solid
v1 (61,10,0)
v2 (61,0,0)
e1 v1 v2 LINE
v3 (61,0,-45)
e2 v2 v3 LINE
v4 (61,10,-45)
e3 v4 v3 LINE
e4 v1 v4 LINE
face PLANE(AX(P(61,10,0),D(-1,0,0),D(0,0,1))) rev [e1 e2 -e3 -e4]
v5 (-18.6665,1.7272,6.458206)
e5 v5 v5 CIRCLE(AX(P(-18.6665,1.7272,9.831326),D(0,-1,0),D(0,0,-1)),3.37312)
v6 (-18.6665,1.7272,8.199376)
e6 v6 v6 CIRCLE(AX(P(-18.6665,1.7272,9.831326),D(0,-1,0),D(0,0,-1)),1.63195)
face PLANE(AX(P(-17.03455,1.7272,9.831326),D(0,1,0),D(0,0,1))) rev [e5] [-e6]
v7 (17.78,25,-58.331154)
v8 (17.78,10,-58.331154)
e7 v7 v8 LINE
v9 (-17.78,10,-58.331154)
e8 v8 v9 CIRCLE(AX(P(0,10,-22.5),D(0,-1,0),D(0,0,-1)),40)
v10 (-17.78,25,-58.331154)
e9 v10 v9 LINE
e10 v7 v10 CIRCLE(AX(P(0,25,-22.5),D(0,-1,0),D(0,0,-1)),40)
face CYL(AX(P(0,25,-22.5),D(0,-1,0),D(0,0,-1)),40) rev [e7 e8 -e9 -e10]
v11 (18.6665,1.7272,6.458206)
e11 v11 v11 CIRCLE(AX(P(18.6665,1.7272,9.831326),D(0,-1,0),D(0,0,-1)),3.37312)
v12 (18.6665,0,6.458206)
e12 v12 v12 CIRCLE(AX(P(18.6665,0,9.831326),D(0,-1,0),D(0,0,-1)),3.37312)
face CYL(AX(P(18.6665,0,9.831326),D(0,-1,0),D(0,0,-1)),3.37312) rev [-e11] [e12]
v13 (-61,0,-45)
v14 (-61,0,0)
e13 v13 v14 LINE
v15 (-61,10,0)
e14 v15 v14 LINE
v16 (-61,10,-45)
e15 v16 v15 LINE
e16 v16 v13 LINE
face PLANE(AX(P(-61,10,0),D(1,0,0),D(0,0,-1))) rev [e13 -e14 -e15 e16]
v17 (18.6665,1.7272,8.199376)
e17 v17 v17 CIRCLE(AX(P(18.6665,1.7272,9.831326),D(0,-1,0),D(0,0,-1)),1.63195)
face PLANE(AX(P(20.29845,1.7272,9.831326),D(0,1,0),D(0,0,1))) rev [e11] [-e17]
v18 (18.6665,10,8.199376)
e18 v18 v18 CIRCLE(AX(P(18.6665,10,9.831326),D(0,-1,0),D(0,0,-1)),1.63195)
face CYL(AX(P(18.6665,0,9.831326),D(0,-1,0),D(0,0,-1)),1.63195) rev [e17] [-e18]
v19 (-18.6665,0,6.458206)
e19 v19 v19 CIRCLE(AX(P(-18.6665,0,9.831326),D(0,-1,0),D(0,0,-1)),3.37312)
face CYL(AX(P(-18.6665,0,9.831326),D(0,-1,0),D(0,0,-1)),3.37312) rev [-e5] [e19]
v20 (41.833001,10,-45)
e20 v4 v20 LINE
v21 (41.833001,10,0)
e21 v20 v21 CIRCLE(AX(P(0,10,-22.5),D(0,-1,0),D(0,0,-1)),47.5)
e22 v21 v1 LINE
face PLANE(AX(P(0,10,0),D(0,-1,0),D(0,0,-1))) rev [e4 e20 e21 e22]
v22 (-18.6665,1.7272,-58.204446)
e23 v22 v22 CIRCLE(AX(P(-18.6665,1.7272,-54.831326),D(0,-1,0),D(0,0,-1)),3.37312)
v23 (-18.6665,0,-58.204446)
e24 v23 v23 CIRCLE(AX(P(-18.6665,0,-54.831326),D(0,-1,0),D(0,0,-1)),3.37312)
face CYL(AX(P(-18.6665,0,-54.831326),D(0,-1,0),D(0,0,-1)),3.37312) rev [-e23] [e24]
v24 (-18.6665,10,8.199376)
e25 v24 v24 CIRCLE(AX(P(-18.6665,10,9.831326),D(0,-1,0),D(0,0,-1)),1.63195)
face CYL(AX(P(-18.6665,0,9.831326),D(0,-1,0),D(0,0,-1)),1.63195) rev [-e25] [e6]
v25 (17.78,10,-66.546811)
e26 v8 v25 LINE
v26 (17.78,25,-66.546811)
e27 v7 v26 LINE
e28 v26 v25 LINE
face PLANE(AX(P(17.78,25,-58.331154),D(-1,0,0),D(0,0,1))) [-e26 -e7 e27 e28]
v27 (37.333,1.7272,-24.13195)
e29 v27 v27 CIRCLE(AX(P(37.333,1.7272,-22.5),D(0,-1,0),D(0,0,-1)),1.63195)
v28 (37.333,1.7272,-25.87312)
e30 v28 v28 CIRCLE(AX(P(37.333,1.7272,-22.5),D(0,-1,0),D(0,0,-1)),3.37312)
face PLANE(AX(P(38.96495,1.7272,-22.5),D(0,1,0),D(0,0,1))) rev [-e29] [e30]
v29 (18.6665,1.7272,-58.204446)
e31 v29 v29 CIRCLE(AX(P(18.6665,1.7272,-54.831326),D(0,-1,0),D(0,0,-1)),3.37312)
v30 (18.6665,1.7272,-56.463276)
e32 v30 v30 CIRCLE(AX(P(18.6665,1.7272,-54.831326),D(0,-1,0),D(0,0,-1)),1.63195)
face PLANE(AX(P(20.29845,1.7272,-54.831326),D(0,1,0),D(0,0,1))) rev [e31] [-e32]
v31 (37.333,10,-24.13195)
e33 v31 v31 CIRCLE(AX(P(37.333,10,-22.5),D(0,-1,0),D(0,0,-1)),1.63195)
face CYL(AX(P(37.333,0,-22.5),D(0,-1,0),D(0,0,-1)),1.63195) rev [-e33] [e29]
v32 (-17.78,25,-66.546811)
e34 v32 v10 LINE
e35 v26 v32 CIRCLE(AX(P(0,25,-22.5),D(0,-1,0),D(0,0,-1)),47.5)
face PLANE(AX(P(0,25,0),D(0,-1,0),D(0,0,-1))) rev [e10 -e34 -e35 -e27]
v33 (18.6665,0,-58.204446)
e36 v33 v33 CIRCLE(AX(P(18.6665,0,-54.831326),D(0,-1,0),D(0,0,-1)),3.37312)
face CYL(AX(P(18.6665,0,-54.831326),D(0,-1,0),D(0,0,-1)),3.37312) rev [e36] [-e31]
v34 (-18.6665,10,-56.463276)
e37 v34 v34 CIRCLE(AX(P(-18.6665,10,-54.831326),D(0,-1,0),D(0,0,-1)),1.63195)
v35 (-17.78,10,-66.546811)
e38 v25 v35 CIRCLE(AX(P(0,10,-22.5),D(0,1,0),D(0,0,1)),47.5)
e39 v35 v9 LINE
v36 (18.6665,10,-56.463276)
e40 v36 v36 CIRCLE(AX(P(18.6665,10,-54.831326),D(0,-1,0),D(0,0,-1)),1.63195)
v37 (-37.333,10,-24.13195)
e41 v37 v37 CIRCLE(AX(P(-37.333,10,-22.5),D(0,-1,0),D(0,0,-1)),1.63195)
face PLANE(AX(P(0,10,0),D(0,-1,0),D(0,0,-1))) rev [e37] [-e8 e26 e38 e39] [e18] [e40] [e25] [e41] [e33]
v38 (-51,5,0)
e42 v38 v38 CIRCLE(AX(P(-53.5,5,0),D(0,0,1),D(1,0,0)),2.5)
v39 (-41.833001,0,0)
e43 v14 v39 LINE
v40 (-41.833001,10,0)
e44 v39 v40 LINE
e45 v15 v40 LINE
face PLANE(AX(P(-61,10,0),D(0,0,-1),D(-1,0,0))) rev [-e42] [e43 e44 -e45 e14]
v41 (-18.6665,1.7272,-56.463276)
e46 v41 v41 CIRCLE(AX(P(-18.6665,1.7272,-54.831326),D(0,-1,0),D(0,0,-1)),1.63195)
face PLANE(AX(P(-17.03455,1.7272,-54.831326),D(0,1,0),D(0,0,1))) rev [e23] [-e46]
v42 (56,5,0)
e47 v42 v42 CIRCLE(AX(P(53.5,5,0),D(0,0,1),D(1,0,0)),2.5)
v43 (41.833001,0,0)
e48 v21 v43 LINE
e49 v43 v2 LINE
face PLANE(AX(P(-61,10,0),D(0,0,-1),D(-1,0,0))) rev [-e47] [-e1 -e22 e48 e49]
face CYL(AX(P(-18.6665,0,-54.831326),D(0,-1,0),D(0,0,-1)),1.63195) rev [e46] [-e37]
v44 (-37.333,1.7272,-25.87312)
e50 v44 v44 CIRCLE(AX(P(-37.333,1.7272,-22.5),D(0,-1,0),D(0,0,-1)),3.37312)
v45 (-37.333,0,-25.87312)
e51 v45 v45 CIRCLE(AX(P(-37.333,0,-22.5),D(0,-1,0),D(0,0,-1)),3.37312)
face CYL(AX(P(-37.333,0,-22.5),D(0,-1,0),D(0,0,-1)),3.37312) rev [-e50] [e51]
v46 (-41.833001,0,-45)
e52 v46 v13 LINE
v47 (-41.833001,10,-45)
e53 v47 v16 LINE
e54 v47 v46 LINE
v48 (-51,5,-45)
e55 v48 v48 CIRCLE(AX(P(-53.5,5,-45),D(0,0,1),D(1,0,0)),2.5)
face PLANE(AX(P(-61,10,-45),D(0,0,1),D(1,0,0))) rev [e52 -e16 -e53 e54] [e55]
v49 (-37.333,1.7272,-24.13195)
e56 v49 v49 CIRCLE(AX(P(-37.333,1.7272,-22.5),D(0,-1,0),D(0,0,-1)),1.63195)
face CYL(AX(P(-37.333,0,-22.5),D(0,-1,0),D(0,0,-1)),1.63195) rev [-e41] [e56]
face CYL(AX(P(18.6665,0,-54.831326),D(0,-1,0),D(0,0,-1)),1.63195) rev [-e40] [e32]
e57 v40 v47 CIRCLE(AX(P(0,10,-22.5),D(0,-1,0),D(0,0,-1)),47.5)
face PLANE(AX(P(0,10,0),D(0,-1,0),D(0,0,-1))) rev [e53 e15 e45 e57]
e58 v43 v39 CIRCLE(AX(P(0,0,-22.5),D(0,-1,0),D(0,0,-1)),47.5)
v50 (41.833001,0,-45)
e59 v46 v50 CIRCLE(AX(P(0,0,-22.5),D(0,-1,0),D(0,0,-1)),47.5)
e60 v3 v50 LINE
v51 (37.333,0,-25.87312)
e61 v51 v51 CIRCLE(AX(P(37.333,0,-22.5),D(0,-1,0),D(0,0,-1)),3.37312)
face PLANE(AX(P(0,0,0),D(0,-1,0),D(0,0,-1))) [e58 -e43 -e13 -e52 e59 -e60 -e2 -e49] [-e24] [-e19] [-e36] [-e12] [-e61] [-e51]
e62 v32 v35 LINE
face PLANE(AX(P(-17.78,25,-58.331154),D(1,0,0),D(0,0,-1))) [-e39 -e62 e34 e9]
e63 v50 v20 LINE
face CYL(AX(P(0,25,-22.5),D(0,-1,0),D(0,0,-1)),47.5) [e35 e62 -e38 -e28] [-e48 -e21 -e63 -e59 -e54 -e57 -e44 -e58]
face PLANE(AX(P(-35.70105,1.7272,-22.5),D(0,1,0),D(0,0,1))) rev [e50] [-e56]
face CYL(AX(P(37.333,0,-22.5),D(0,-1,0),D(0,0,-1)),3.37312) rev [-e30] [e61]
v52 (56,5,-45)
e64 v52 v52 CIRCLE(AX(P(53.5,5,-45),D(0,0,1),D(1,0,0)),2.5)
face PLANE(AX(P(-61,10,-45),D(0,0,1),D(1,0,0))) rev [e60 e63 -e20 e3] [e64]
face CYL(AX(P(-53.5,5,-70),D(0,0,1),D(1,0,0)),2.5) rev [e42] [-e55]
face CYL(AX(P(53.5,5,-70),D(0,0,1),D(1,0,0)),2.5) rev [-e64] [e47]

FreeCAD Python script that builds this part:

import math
import FreeCAD as App
import Part
import Sketcher
from FreeCAD import Vector
Q = App.Units.Quantity

doc = App.newDocument("Part")
params = doc.addObject("Spreadsheet::Sheet", "Params")
for row, (alias, value) in enumerate([
    ("sketch1_width", "122 mm"),
    ("sketch1_height", "45 mm"),
    ("pad1_length", "10 mm"),
    ("pad2_length", "10 mm"),
    ("sketch3_diameter", "80 mm"),
    ("sketch3_radius", "47.5 mm"),
    ("pad3_length", "25 mm"),
    ("sketch4_diameter", "5 mm"),
    ("sketch5_radius", "40 mm"),
    ("sketch5_radius2", "47.5 mm"),
    ("hole_diameter", "3.2639 mm"),
    ("hole_cbore_diameter", "6.74624 mm"),
    ("hole_cbore_depth", "1.7272 mm"),
], start=1):
    params.set(f"A{row}", alias)
    params.set(f"B{row}", "=" + value)
    params.setAlias(f"B{row}", alias)

body = doc.addObject("PartDesign::Body", "Body")

# Sketch on XZ plane
sketch1 = doc.addObject("Sketcher::SketchObject", "Sketch")
body.addObject(sketch1)
sketch1.AttachmentSupport = (doc.XZ_Plane, [""])
sketch1.MapMode = "FlatFace"
sketch1.addGeometry(Part.LineSegment(Vector(-61, -45, 0), Vector(-61, 0, 0)), False)
sketch1.addGeometry(Part.LineSegment(Vector(-61, 0, 0), Vector(61, 0, 0)), False)
sketch1.addGeometry(Part.LineSegment(Vector(61, 0, 0), Vector(61, -45, 0)), False)
sketch1.addGeometry(Part.LineSegment(Vector(61, -45, 0), Vector(-61, -45, 0)), False)
sketch1.addConstraint(Sketcher.Constraint("Coincident", 0, 2, 1, 1))
sketch1.addConstraint(Sketcher.Constraint("Coincident", 1, 2, 2, 1))
sketch1.addConstraint(Sketcher.Constraint("Coincident", 2, 2, 3, 1))
sketch1.addConstraint(Sketcher.Constraint("Coincident", 3, 2, 0, 1))
sketch1.addConstraint(Sketcher.Constraint("Vertical", 0))
sketch1.addConstraint(Sketcher.Constraint("Horizontal", 1))
sketch1.addConstraint(Sketcher.Constraint("Vertical", 2))
sketch1.addConstraint(Sketcher.Constraint("Horizontal", 3))
sketch1.addConstraint(Sketcher.Constraint("Symmetric", 0, 2, 1, 2, -1, 1))
sketch1.addConstraint(Sketcher.Constraint("DistanceX", 1, 1, 1, 2, Q("122 mm")))
sketch1.addConstraint(Sketcher.Constraint("DistanceY", 0, 1, 0, 2, Q("45 mm")))
sketch1.setExpression("Constraints[9]", "Params.sketch1_width")
sketch1.setExpression("Constraints[10]", "Params.sketch1_height")
pad1 = doc.addObject("PartDesign::Pad", "Pad")
body.addObject(pad1)
pad1.Profile = sketch1
pad1.setExpression("Length", "Params.pad1_length")
pad1.Reversed = True

# Sketch on XZ plane
sketch2 = doc.addObject("Sketcher::SketchObject", "Sketch001")
body.addObject(sketch2)
sketch2.AttachmentSupport = (doc.XZ_Plane, [""])
sketch2.MapMode = "FlatFace"
sketch2.AttachmentOffset = App.Placement(Vector(0, 0, -10), App.Rotation())
sketch2.addGeometry(Part.ArcOfCircle(Part.Circle(Vector(0, -23, 0), Vector(0, 0, 1), 42), math.radians(0), math.radians(32)), False)
sketch2.addGeometry(Part.ArcOfCircle(Part.Circle(Vector(0, -22, 0), Vector(0, 0, 1), 42), math.radians(-32), math.radians(0)), False)
sketch2.addGeometry(Part.ArcOfCircle(Part.Circle(Vector(0, -22, 0), Vector(0, 0, 1), 42), math.radians(-148), math.radians(-32)), False)
sketch2.addGeometry(Part.ArcOfCircle(Part.Circle(Vector(0, -22, 0), Vector(0, 0, 1), 42), math.radians(148), math.radians(212)), False)
sketch2.addGeometry(Part.ArcOfCircle(Part.Circle(Vector(0, -23, 0), Vector(0, 0, 1), 42), math.radians(32), math.radians(148)), False)
sketch2.addConstraint(Sketcher.Constraint("Tangent", 0, 1, 1, 2))
sketch2.addConstraint(Sketcher.Constraint("Tangent", 1, 1, 2, 2))
sketch2.addConstraint(Sketcher.Constraint("Tangent", 2, 1, 3, 2))
sketch2.addConstraint(Sketcher.Constraint("Tangent", 3, 1, 4, 2))
sketch2.addConstraint(Sketcher.Constraint("Tangent", 4, 1, 0, 2))
sketch2.addConstraint(Sketcher.Constraint("Coincident", 2, 3, 0, 3))
sketch2.addConstraint(Sketcher.Constraint("Symmetric", 3, 1, 4, 1, -1, 1))
sketch2.addConstraint(Sketcher.Constraint("Symmetric", 1, 1, 2, 1, -2))
sketch2.addConstraint(Sketcher.Constraint("Horizontal", 4, 3, 0, 1))
sketch2.addConstraint(Sketcher.Constraint("Vertical", 2, 1, 3, 1))
sketch2.addConstraint(Sketcher.Constraint("DistanceY", 1, 1, -1, 1, Q("45 mm")))
sketch2.addConstraint(Sketcher.Constraint("Radius", 0, Q("42.333 mm")))
pad2 = doc.addObject("PartDesign::Pad", "Pad001")
body.addObject(pad2)
pad2.Profile = sketch2
pad2.setExpression("Length", "Params.pad2_length")

# Sketch on XZ plane
sketch3 = doc.addObject("Sketcher::SketchObject", "Sketch002")
body.addObject(sketch3)
sketch3.AttachmentSupport = (doc.XZ_Plane, [""])
sketch3.MapMode = "FlatFace"
sketch3.AttachmentOffset = App.Placement(Vector(0, 0, -25), App.Rotation())
sketch3.addGeometry(Part.ArcOfCircle(Part.Circle(Vector(0, -22, 0), Vector(0, 0, 1), 48), math.radians(-152), math.radians(-28)), False)
sketch3.addGeometry(Part.ArcOfCircle(Part.Circle(Vector(0, -23, 0), Vector(0, 0, 1), 47), math.radians(-28), math.radians(0)), False)
sketch3.addGeometry(Part.ArcOfCircle(Part.Circle(Vector(0, -22, 0), Vector(0, 0, 1), 47), math.radians(0), math.radians(28)), False)
sketch3.addGeometry(Part.ArcOfCircle(Part.Circle(Vector(0, -22, 0), Vector(0, 0, 1), 48), math.radians(28), math.radians(152)), False)
sketch3.addGeometry(Part.ArcOfCircle(Part.Circle(Vector(0, -22, 0), Vector(0, 0, 1), 48), math.radians(152), math.radians(208)), False)
sketch3.addGeometry(Part.Circle(Vector(0, -22, 0), Vector(0, 0, 1), 40), False)
sketch3.addConstraint(Sketcher.Constraint("Tangent", 0, 2, 1, 1))
sketch3.addConstraint(Sketcher.Constraint("Tangent", 1, 2, 2, 1))
sketch3.addConstraint(Sketcher.Constraint("Tangent", 2, 2, 3, 1))
sketch3.addConstraint(Sketcher.Constraint("Tangent", 3, 2, 4, 1))
sketch3.addConstraint(Sketcher.Constraint("Tangent", 4, 2, 0, 1))
sketch3.addConstraint(Sketcher.Constraint("Coincident", 2, 3, 0, 3))
sketch3.addConstraint(Sketcher.Constraint("Coincident", 5, 3, 0, 3))
sketch3.addConstraint(Sketcher.Constraint("Symmetric", 2, 2, 3, 2, -1, 1))
sketch3.addConstraint(Sketcher.Constraint("Symmetric", 0, 2, 4, 2, -2))
sketch3.addConstraint(Sketcher.Constraint("Horizontal", 5, 3, 1, 2))
sketch3.addConstraint(Sketcher.Constraint("Vertical", 0, 2, 2, 2))
sketch3.addConstraint(Sketcher.Constraint("Diameter", 5, Q("80 mm")))
sketch3.addConstraint(Sketcher.Constraint("Radius", 0, Q("47.5 mm")))
sketch3.addConstraint(Sketcher.Constraint("DistanceY", 0, 2, -1, 1, Q("45 mm")))
sketch3.setExpression("Constraints[11]", "Params.sketch3_diameter")
sketch3.setExpression("Constraints[12]", "Params.sketch3_radius")
pad3 = doc.addObject("PartDesign::Pad", "Pad002")
body.addObject(pad3)
pad3.Profile = sketch3
pad3.setExpression("Length", "Params.pad3_length")

# Sketch on XY plane
sketch4 = doc.addObject("Sketcher::SketchObject", "Sketch003")
body.addObject(sketch4)
sketch4.AttachmentSupport = (doc.XY_Plane, [""])
sketch4.MapMode = "FlatFace"
sketch4.addGeometry(Part.Circle(Vector(-53.5, 5, 0), Vector(0, 0, 1), 2.5), False)
sketch4.addGeometry(Part.Circle(Vector(53.5, 5, 0), Vector(0, 0, 1), 2.5), False)
sketch4.addConstraint(Sketcher.Constraint("Equal", 0, 1))
sketch4.addConstraint(Sketcher.Constraint("Symmetric", 0, 3, 1, 3, -2))
sketch4.addConstraint(Sketcher.Constraint("Diameter", 0, Q("5 mm")))
sketch4.addConstraint(Sketcher.Constraint("DistanceY", -1, 1, 0, 3, Q("5 mm")))
sketch4.addConstraint(Sketcher.Constraint("DistanceX", 0, 3, 1, 3, Q("107 mm")))
sketch4.setExpression("Constraints[2]", "Params.sketch4_diameter")
pocket1 = doc.addObject("PartDesign::Pocket", "Pocket")
body.addObject(pocket1)
pocket1.Profile = sketch4
pocket1.Type = "ThroughAll"

# Sketch on XZ plane
sketch5 = doc.addObject("Sketcher::SketchObject", "Sketch004")
body.addObject(sketch5)
sketch5.AttachmentSupport = (doc.XZ_Plane, [""])
sketch5.MapMode = "FlatFace"
sketch5.AttachmentOffset = App.Placement(Vector(0, 0, -10), App.Rotation())
sketch5.addGeometry(Part.LineSegment(Vector(-18, -67, 0), Vector(-18, -58, 0)), False)
sketch5.addGeometry(Part.ArcOfCircle(Part.Circle(Vector(0, -23, 0), Vector(0, 0, 1), 40), math.radians(-116), math.radians(-64)), False)
sketch5.addGeometry(Part.LineSegment(Vector(18, -58, 0), Vector(18, -67, 0)), False)
sketch5.addGeometry(Part.ArcOfCircle(Part.Circle(Vector(0, -23, 0), Vector(0, 0, 1), 47), math.radians(-112), math.radians(-68)), False)
sketch5.addConstraint(Sketcher.Constraint("Coincident", 0, 2, 1, 1))
sketch5.addConstraint(Sketcher.Constraint("Coincident", 1, 2, 2, 1))
sketch5.addConstraint(Sketcher.Constraint("Coincident", 2, 2, 3, 2))
sketch5.addConstraint(Sketcher.Constraint("Coincident", 3, 1, 0, 1))
sketch5.addConstraint(Sketcher.Constraint("Vertical", 0))
sketch5.addConstraint(Sketcher.Constraint("Vertical", 2))
sketch5.addConstraint(Sketcher.Constraint("Coincident", 3, 3, 1, 3))
sketch5.addConstraint(Sketcher.Constraint("Symmetric", 0, 2, 1, 2, -2))
sketch5.addConstraint(Sketcher.Constraint("Radius", 1, Q("40 mm")))
sketch5.addConstraint(Sketcher.Constraint("Radius", 3, Q("47.5 mm")))
sketch5.addConstraint(Sketcher.Constraint("DistanceY", 1, 3, -1, 1, Q("22.5 mm")))
sketch5.addConstraint(Sketcher.Constraint("DistanceX", 0, 2, -1, 1, Q("17.78 mm")))
sketch5.setExpression("Constraints[8]", "Params.sketch5_radius")
sketch5.setExpression("Constraints[9]", "Params.sketch5_radius2")
pocket2 = doc.addObject("PartDesign::Pocket", "Pocket001")
body.addObject(pocket2)
pocket2.Profile = sketch5
pocket2.Type = "ThroughAll"

# Sketch on XZ plane
sketch6 = doc.addObject("Sketcher::SketchObject", "Sketch005")
body.addObject(sketch6)
sketch6.AttachmentSupport = (doc.XZ_Plane, [""])
sketch6.MapMode = "FlatFace"
sketch6.addGeometry(Part.Circle(Vector(-18.7, 9.8, 0), Vector(0, 0, 1), 1.6), False)
sketch6.addGeometry(Part.Circle(Vector(18.7, 9.8, 0), Vector(0, 0, 1), 1.6), False)
sketch6.addGeometry(Part.Circle(Vector(37.3, -22.5, 0), Vector(0, 0, 1), 1.6), False)
sketch6.addGeometry(Part.Circle(Vector(18.7, -54.8, 0), Vector(0, 0, 1), 1.6), False)
sketch6.addGeometry(Part.Circle(Vector(-18.7, -54.8, 0), Vector(0, 0, 1), 1.6), False)
sketch6.addGeometry(Part.Circle(Vector(-37.3, -22.5, 0), Vector(0, 0, 1), 1.6), False)
sketch6.addConstraint(Sketcher.Constraint("Equal", 0, 1))
sketch6.addConstraint(Sketcher.Constraint("Equal", 1, 2))
sketch6.addConstraint(Sketcher.Constraint("Equal", 2, 3))
sketch6.addConstraint(Sketcher.Constraint("Equal", 3, 4))
sketch6.addConstraint(Sketcher.Constraint("Equal", 4, 5))
sketch6.addConstraint(Sketcher.Constraint("Symmetric", 0, 3, 1, 3, -2))
sketch6.addConstraint(Sketcher.Constraint("Symmetric", 3, 3, 4, 3, -2))
sketch6.addConstraint(Sketcher.Constraint("Symmetric", 2, 3, 5, 3, -2))
sketch6.addConstraint(Sketcher.Constraint("Vertical", 1, 3, 3, 3))
sketch6.addConstraint(Sketcher.Constraint("Diameter", 0, Q("3.2639 mm")))
sketch6.addConstraint(Sketcher.Constraint("DistanceY", 2, 3, -1, 1, Q("22.5 mm")))
sketch6.addConstraint(Sketcher.Constraint("DistanceX", -1, 1, 2, 3, Q("37.333 mm")))
sketch6.addConstraint(Sketcher.Constraint("DistanceX", 0, 3, 1, 3, Q("37.333 mm")))
sketch6.addConstraint(Sketcher.Constraint("DistanceY", -1, 1, 0, 3, Q("9.831326 mm")))
sketch6.addConstraint(Sketcher.Constraint("DistanceY", 3, 3, -1, 1, Q("54.831326 mm")))
doc.recompute()
hole = doc.addObject("PartDesign::Hole", "Hole")
body.addObject(hole)
hole.Profile = sketch6
hole.ThreadType = "None"
hole.setExpression("Diameter", "Params.hole_diameter")
hole.DepthType = "ThroughAll"
hole.HoleCutType = "Counterbore"
hole.setExpression("HoleCutDiameter", "Params.hole_cbore_diameter")
hole.setExpression("HoleCutDepth", "Params.hole_cbore_depth")

doc.recompute()
